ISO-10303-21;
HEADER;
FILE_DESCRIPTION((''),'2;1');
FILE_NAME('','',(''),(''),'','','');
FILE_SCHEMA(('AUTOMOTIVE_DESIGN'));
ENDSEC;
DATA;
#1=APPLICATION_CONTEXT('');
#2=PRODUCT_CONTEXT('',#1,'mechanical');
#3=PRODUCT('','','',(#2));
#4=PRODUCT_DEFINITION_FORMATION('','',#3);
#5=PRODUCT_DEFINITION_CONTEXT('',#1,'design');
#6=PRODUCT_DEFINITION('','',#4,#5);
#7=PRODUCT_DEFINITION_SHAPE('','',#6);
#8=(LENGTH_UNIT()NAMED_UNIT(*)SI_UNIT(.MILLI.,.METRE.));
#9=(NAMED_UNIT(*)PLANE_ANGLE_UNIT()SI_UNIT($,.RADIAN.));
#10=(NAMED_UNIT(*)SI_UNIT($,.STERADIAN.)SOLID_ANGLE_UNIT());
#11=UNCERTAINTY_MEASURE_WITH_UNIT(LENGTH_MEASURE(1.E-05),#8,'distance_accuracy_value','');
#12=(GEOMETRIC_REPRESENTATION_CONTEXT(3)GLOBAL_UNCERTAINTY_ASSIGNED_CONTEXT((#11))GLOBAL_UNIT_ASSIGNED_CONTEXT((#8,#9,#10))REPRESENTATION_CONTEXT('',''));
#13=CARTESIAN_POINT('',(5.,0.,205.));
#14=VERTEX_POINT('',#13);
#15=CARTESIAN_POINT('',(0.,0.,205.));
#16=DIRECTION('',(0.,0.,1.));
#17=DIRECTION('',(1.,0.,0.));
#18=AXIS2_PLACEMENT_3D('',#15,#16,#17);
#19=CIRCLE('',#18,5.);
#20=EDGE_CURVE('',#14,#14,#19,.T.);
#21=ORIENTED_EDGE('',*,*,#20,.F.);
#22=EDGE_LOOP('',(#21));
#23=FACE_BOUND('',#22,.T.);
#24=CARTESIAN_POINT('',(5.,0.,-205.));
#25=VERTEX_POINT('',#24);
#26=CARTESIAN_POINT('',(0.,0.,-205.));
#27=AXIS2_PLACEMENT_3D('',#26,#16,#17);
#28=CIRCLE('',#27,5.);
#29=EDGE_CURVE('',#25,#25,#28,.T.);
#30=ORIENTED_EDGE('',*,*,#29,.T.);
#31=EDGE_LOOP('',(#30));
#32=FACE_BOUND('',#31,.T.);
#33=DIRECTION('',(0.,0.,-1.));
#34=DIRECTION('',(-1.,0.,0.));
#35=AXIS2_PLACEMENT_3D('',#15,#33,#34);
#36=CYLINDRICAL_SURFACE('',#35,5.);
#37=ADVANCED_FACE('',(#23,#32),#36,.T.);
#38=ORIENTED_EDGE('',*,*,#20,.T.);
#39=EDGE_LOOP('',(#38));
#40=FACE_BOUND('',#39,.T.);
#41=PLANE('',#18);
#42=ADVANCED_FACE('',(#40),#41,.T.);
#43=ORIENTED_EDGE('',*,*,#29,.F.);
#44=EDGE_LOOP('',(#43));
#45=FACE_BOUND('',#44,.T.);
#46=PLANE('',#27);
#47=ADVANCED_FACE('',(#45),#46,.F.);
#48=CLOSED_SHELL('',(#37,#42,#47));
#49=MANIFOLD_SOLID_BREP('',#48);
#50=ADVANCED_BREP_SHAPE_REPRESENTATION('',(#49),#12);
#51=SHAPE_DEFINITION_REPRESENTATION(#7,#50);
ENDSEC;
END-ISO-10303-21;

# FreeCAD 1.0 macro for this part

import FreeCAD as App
import Part
import Sketcher

V = App.Vector

doc = App.newDocument("Part")
body = doc.addObject("PartDesign::Body", "Body")

sketch1 = body.newObject("Sketcher::SketchObject", "Sketch")
sketch1.AttachmentSupport = (doc.getObject("XY_Plane"), [""])
sketch1.MapMode = "FlatFace"
sketch1.addGeometry(Part.Circle(V(0, 0, 0), V(0, 0, 1), 5), False)
sketch1.addConstraint([
    Sketcher.Constraint("Coincident", 0, 3, -1, 1),
    Sketcher.Constraint("Diameter", 0, 10.0),
])
pad1 = body.newObject("PartDesign::Pad", "Pad")
pad1.Profile = sketch1
pad1.Length = 410
pad1.Midplane = True

doc.recompute()
